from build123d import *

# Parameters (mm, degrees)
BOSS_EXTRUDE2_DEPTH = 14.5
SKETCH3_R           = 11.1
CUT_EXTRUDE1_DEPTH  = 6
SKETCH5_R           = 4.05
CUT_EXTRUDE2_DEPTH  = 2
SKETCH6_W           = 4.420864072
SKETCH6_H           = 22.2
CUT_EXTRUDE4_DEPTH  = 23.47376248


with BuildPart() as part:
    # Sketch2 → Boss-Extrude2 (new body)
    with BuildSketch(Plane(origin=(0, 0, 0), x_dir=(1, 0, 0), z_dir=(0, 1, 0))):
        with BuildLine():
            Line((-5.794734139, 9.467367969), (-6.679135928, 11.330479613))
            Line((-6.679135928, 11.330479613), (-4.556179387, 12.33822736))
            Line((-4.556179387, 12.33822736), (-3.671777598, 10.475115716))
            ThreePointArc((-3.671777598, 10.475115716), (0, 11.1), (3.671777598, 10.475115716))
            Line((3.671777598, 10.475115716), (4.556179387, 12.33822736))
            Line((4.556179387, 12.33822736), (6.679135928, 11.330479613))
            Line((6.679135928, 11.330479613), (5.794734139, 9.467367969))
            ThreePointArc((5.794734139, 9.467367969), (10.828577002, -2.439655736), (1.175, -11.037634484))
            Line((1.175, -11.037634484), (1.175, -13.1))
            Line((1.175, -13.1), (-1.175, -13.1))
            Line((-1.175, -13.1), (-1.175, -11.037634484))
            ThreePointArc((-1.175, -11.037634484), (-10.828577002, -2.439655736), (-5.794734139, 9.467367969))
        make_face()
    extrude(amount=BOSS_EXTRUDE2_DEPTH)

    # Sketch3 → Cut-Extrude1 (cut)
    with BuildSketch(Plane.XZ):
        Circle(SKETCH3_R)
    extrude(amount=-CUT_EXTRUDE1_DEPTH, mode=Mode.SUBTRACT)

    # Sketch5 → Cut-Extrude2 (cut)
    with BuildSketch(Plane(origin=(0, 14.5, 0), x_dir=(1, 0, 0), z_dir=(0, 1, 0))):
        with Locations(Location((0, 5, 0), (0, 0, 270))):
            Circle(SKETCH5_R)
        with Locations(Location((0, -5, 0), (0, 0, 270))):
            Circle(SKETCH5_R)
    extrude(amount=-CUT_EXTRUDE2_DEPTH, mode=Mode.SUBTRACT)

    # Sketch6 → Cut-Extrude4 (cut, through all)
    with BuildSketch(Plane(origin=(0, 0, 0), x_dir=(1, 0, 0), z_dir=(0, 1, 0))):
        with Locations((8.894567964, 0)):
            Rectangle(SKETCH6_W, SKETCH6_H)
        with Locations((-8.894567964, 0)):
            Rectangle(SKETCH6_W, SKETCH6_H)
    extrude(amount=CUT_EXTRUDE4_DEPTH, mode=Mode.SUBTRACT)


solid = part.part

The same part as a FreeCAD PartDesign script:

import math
import FreeCAD as App
import Part
import Sketcher

doc = App.newDocument("Part")
body = doc.addObject("PartDesign::Body", "Body")

# Sketch on XZ plane
sketch1 = body.newObject("Sketcher::SketchObject", "Sketch")
sketch1.AttachmentSupport = (doc.getObject("XZ_Plane"), [""])
sketch1.MapMode = "FlatFace"
sketch1.addGeometry(Part.LineSegment(App.Vector(-6.7, -11.3, 0), App.Vector(-5.8, -9.5, 0)), False)
sketch1.addGeometry(Part.ArcOfCircle(Part.Circle(App.Vector(0, 0, 0), App.Vector(0, 0, 1), 11.1), math.radians(96), math.radians(239)), False)
sketch1.addGeometry(Part.LineSegment(App.Vector(-1.2, 11, 0), App.Vector(-1.2, 13.1, 0)), False)
sketch1.addGeometry(Part.LineSegment(App.Vector(-1.2, 13.1, 0), App.Vector(1.2, 13.1, 0)), False)
sketch1.addGeometry(Part.LineSegment(App.Vector(1.2, 13.1, 0), App.Vector(1.2, 11, 0)), False)
sketch1.addGeometry(Part.ArcOfCircle(Part.Circle(App.Vector(0, 0, 0), App.Vector(0, 0, 1), 11.1), math.radians(-59), math.radians(84)), False)
sketch1.addGeometry(Part.LineSegment(App.Vector(5.8, -9.5, 0), App.Vector(6.7, -11.3, 0)), False)
sketch1.addGeometry(Part.LineSegment(App.Vector(6.7, -11.3, 0), App.Vector(4.6, -12.3, 0)), False)
sketch1.addGeometry(Part.LineSegment(App.Vector(4.6, -12.3, 0), App.Vector(3.7, -10.5, 0)), False)
sketch1.addGeometry(Part.ArcOfCircle(Part.Circle(App.Vector(0, 0, 0), App.Vector(0, 0, 1), 11.1), math.radians(-109), math.radians(-71)), False)
sketch1.addGeometry(Part.LineSegment(App.Vector(-3.7, -10.5, 0), App.Vector(-4.6, -12.3, 0)), False)
sketch1.addGeometry(Part.LineSegment(App.Vector(-4.6, -12.3, 0), App.Vector(-6.7, -11.3, 0)), False)
sketch1.addConstraint(Sketcher.Constraint("Coincident", 0, 2, 1, 2))
sketch1.addConstraint(Sketcher.Constraint("Coincident", 1, 1, 2, 1))
sketch1.addConstraint(Sketcher.Constraint("Coincident", 2, 2, 3, 1))
sketch1.addConstraint(Sketcher.Constraint("Coincident", 3, 2, 4, 1))
sketch1.addConstraint(Sketcher.Constraint("Coincident", 4, 2, 5, 2))
sketch1.addConstraint(Sketcher.Constraint("Coincident", 5, 1, 6, 1))
sketch1.addConstraint(Sketcher.Constraint("Coincident", 6, 2, 7, 1))
sketch1.addConstraint(Sketcher.Constraint("Coincident", 7, 2, 8, 1))
sketch1.addConstraint(Sketcher.Constraint("Coincident", 8, 2, 9, 2))
sketch1.addConstraint(Sketcher.Constraint("Coincident", 9, 1, 10, 1))
sketch1.addConstraint(Sketcher.Constraint("Coincident", 10, 2, 11, 1))
sketch1.addConstraint(Sketcher.Constraint("Coincident", 11, 2, 0, 1))
sketch1.addConstraint(Sketcher.Constraint("Vertical", 2))
sketch1.addConstraint(Sketcher.Constraint("Horizontal", 3))
sketch1.addConstraint(Sketcher.Constraint("Vertical", 4))
sketch1.addConstraint(Sketcher.Constraint("Coincident", 1, 3, -1, 1))
sketch1.addConstraint(Sketcher.Constraint("Coincident", 5, 3, -1, 1))
sketch1.addConstraint(Sketcher.Constraint("Coincident", 9, 3, -1, 1))
sketch1.addConstraint(Sketcher.Constraint("Equal", 1, 5))
sketch1.addConstraint(Sketcher.Constraint("Equal", 5, 9))
sketch1.addConstraint(Sketcher.Constraint("Symmetric", 7, 2, 10, 2, -2))
sketch1.addConstraint(Sketcher.Constraint("Symmetric", 6, 2, 11, 2, -2))
sketch1.addConstraint(Sketcher.Constraint("Perpendicular", 6, 7))
sketch1.addConstraint(Sketcher.Constraint("Perpendicular", 7, 8))
sketch1.addConstraint(Sketcher.Constraint("Parallel", 0, 10))
sketch1.addConstraint(Sketcher.Constraint("Perpendicular", 10, 11))
sketch1.addConstraint(Sketcher.Constraint("Horizontal", 1, 1, 4, 2))
sketch1.addConstraint(Sketcher.Constraint("Equal", 6, 8))
sketch1.addConstraint(Sketcher.Constraint("Radius", 1, 11.1))
sketch1.addConstraint(Sketcher.Constraint("DistanceX", 3, 1, 3, 2, 2.35))
sketch1.addConstraint(Sketcher.Constraint("DistanceY", -1, 1, 2, 2, 13.1))
sketch1.addConstraint(Sketcher.Constraint("Distance", 7, 2.35))
sketch1.addConstraint(Sketcher.Constraint("DistanceX", 5, 1, 6, 2, 0.884402))
sketch1.addConstraint(Sketcher.Constraint("DistanceY", 6, 2, -1, 1, 11.33048))
pad1 = body.newObject("PartDesign::Pad", "Pad")
pad1.Profile = sketch1
pad1.Length = 14.5
pad1.Reversed = True

# Sketch on XZ plane
sketch2 = body.newObject("Sketcher::SketchObject", "Sketch001")
sketch2.AttachmentSupport = (doc.getObject("XZ_Plane"), [""])
sketch2.MapMode = "FlatFace"
sketch2.addGeometry(Part.Circle(App.Vector(0, 0, 0), App.Vector(0, 0, 1), 11), False)
sketch2.addConstraint(Sketcher.Constraint("Coincident", 0, 3, -1, 1))
sketch2.addConstraint(Sketcher.Constraint("Diameter", 0, 22.2))
pocket1 = body.newObject("PartDesign::Pocket", "Pocket")
pocket1.Profile = sketch2
pocket1.Length = 6

# Sketch on XZ plane
sketch3 = body.newObject("Sketcher::SketchObject", "Sketch002")
sketch3.AttachmentSupport = (doc.getObject("XZ_Plane"), [""])
sketch3.MapMode = "FlatFace"
sketch3.AttachmentOffset = App.Placement(App.Vector(0, 0, -14.5), App.Rotation())
sketch3.addGeometry(Part.Circle(App.Vector(0, -5, 0), App.Vector(0, 0, 1), 4), False)
sketch3.addGeometry(Part.Circle(App.Vector(0, 5, 0), App.Vector(0, 0, 1), 4), False)
sketch3.addConstraint(Sketcher.Constraint("Equal", 0, 1))
sketch3.addConstraint(Sketcher.Constraint("Symmetric", 0, 3, 1, 3, -1, 1))
sketch3.addConstraint(Sketcher.Constraint("PointOnObject", 0, 3, -2))
sketch3.addConstraint(Sketcher.Constraint("Diameter", 0, 8.1))
sketch3.addConstraint(Sketcher.Constraint("DistanceY", 0, 3, -1, 1, 5.0))
pocket2 = body.newObject("PartDesign::Pocket", "Pocket001")
pocket2.Profile = sketch3
pocket2.Length = 2
pocket2.Reversed = True

# Sketch on XZ plane
sketch4 = body.newObject("Sketcher::SketchObject", "Sketch003")
sketch4.AttachmentSupport = (doc.getObject("XZ_Plane"), [""])
sketch4.MapMode = "FlatFace"
sketch4.addGeometry(Part.LineSegment(App.Vector(6.7, -11.1, 0), App.Vector(6.7, 11.1, 0)), False)
sketch4.addGeometry(Part.LineSegment(App.Vector(6.7, 11.1, 0), App.Vector(11.1, 11.1, 0)), False)
sketch4.addGeometry(Part.LineSegment(App.Vector(11.1, 11.1, 0), App.Vector(11.1, -11.1, 0)), False)
sketch4.addGeometry(Part.LineSegment(App.Vector(11.1, -11.1, 0), App.Vector(6.7, -11.1, 0)), False)
sketch4.addGeometry(Part.LineSegment(App.Vector(-11.1, -11.1, 0), App.Vector(-11.1, 11.1, 0)), False)
sketch4.addGeometry(Part.LineSegment(App.Vector(-11.1, 11.1, 0), App.Vector(-6.7, 11.1, 0)), False)
sketch4.addGeometry(Part.LineSegment(App.Vector(-6.7, 11.1, 0), App.Vector(-6.7, -11.1, 0)), False)
sketch4.addGeometry(Part.LineSegment(App.Vector(-6.7, -11.1, 0), App.Vector(-11.1, -11.1, 0)), False)
sketch4.addConstraint(Sketcher.Constraint("Coincident", 0, 2, 1, 1))
sketch4.addConstraint(Sketcher.Constraint("Coincident", 1, 2, 2, 1))
sketch4.addConstraint(Sketcher.Constraint("Coincident", 2, 2, 3, 1))
sketch4.addConstraint(Sketcher.Constraint("Coincident", 3, 2, 0, 1))
sketch4.addConstraint(Sketcher.Constraint("Coincident", 4, 2, 5, 1))
sketch4.addConstraint(Sketcher.Constraint("Coincident", 5, 2, 6, 1))
sketch4.addConstraint(Sketcher.Constraint("Coincident", 6, 2, 7, 1))
sketch4.addConstraint(Sketcher.Constraint("Coincident", 7, 2, 4, 1))
sketch4.addConstraint(Sketcher.Constraint("Vertical", 0))
sketch4.addConstraint(Sketcher.Constraint("Horizontal", 1))
sketch4.addConstraint(Sketcher.Constraint("Vertical", 2))
sketch4.addConstraint(Sketcher.Constraint("Horizontal", 3))
sketch4.addConstraint(Sketcher.Constraint("Vertical", 4))
sketch4.addConstraint(Sketcher.Constraint("Horizontal", 5))
sketch4.addConstraint(Sketcher.Constraint("Vertical", 6))
sketch4.addConstraint(Sketcher.Constraint("Horizontal", 7))
sketch4.addConstraint(Sketcher.Constraint("Symmetric", 2, 2, 4, 2, -1, 1))
sketch4.addConstraint(Sketcher.Constraint("Symmetric", 0, 2, 6, 2, -1, 1))
sketch4.addConstraint(Sketcher.Constraint("Horizontal", 1, 2, 4, 2))
sketch4.addConstraint(Sketcher.Constraint("DistanceY", 0, 1, 0, 2, 22.2))
sketch4.addConstraint(Sketcher.Constraint("DistanceX", 4, 2, 1, 2, 22.21))
sketch4.addConstraint(Sketcher.Constraint("DistanceX", 1, 1, 1, 2, 4.420864))
pocket3 = body.newObject("PartDesign::Pocket", "Pocket002")
pocket3.Profile = sketch4
pocket3.Type = "ThroughAll"

doc.recompute()
